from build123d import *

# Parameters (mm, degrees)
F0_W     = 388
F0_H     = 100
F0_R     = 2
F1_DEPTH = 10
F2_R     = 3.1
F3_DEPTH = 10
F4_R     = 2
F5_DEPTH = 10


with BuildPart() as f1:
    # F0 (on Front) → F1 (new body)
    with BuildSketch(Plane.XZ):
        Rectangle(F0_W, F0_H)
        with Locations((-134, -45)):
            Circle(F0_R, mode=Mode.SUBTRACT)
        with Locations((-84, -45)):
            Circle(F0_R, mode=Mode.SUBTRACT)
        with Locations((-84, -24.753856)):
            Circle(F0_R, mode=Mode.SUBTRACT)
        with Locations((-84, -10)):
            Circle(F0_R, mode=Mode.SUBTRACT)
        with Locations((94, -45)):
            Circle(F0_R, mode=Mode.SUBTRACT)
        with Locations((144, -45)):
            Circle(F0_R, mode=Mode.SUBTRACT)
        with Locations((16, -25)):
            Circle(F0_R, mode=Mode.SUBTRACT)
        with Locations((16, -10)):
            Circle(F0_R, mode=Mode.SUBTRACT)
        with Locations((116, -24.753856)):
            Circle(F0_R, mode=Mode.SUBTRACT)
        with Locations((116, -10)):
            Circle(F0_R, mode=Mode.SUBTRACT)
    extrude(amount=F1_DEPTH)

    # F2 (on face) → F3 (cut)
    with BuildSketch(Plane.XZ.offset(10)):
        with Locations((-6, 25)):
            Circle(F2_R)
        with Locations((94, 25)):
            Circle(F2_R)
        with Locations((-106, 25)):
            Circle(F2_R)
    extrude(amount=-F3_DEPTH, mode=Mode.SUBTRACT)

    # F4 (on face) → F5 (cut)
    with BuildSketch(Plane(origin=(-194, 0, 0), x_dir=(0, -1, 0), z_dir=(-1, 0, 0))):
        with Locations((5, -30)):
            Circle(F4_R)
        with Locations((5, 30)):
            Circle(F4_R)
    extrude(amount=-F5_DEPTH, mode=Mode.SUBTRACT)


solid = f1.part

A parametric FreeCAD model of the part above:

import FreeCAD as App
import Part
import Sketcher

V = App.Vector
Q = App.Units.Quantity


def add_polygon(sketch, points):
    """Adds a closed chain of lines whose ends are joined by coincident constraints."""
    first, n = sketch.GeometryCount, len(points)
    for a, b in zip(points, points[1:] + points[:1]):
        sketch.addGeometry(Part.LineSegment(App.Vector(*a, 0), App.Vector(*b, 0)), False)
    for i in range(n):
        sketch.addConstraint(Sketcher.Constraint("Coincident", first + i, 2, first + (i + 1) % n, 1))

doc = App.newDocument("Part")
body = doc.addObject("PartDesign::Body", "Body")

sketch1 = body.newObject("Sketcher::SketchObject", "Sketch")
sketch1.AttachmentSupport = (doc.getObject("XZ_Plane"), [""])
sketch1.MapMode = "FlatFace"
add_polygon(sketch1, [(-194, 50), (-194, -50), (194, -50), (194, 50)])
sketch1.addGeometry(Part.Circle(V(-134, -45, 0), V(0, 0, 1), 2), False)
sketch1.addGeometry(Part.Circle(V(-84, -45, 0), V(0, 0, 1), 2), False)
sketch1.addGeometry(Part.Circle(V(94, -45, 0), V(0, 0, 1), 2), False)
sketch1.addGeometry(Part.Circle(V(144, -45, 0), V(0, 0, 1), 2), False)
sketch1.addGeometry(Part.Circle(V(-84, -24.753856, 0), V(0, 0, 1), 2), False)
sketch1.addGeometry(Part.Circle(V(-84, -10, 0), V(0, 0, 1), 2), False)
sketch1.addGeometry(Part.Circle(V(16, -25, 0), V(0, 0, 1), 2), False)
sketch1.addGeometry(Part.Circle(V(116, -24.753856, 0), V(0, 0, 1), 2), False)
sketch1.addGeometry(Part.Circle(V(16, -10, 0), V(0, 0, 1), 2), False)
sketch1.addGeometry(Part.Circle(V(116, -10, 0), V(0, 0, 1), 2), False)
sketch1.addConstraint(Sketcher.Constraint("Vertical", 0))
sketch1.addConstraint(Sketcher.Constraint("Horizontal", 1))
sketch1.addConstraint(Sketcher.Constraint("Vertical", 2))
sketch1.addConstraint(Sketcher.Constraint("Horizontal", 3))
sketch1.addConstraint(Sketcher.Constraint("Equal", 4, 5))
sketch1.addConstraint(Sketcher.Constraint("Equal", 5, 6))
sketch1.addConstraint(Sketcher.Constraint("Equal", 6, 7))
sketch1.addConstraint(Sketcher.Constraint("Equal", 7, 8))
sketch1.addConstraint(Sketcher.Constraint("Equal", 8, 9))
sketch1.addConstraint(Sketcher.Constraint("Equal", 9, 10))
sketch1.addConstraint(Sketcher.Constraint("Equal", 10, 11))
sketch1.addConstraint(Sketcher.Constraint("Equal", 11, 12))
sketch1.addConstraint(Sketcher.Constraint("Equal", 12, 13))
sketch1.addConstraint(Sketcher.Constraint("Symmetric", 0, 2, 2, 2, -1, 1))
sketch1.addConstraint(Sketcher.Constraint("Horizontal", 4, 3, 5, 3))
sketch1.addConstraint(Sketcher.Constraint("Horizontal", 5, 3, 6, 3))
sketch1.addConstraint(Sketcher.Constraint("Horizontal", 6, 3, 7, 3))
sketch1.addConstraint(Sketcher.Constraint("Horizontal", 8, 3, 11, 3))
sketch1.addConstraint(Sketcher.Constraint("Horizontal", 9, 3, 12, 3))
sketch1.addConstraint(Sketcher.Constraint("Horizontal", 12, 3, 13, 3))
sketch1.addConstraint(Sketcher.Constraint("Vertical", 5, 3, 8, 3))
sketch1.addConstraint(Sketcher.Constraint("Vertical", 8, 3, 9, 3))
sketch1.addConstraint(Sketcher.Constraint("Vertical", 10, 3, 12, 3))
sketch1.addConstraint(Sketcher.Constraint("Vertical", 11, 3, 13, 3))
sketch1.addConstraint(Sketcher.Constraint("Diameter", 4, Q("4 mm")))
sketch1.addConstraint(Sketcher.Constraint("DistanceX", 1, 1, 1, 2, Q("388 mm")))
sketch1.addConstraint(Sketcher.Constraint("DistanceY", 0, 2, 0, 1, Q("100 mm")))
sketch1.addConstraint(Sketcher.Constraint("DistanceX", 4, 3, -1, 1, Q("134 mm")))
sketch1.addConstraint(Sketcher.Constraint("DistanceY", 4, 3, -1, 1, Q("45 mm")))
sketch1.addConstraint(Sketcher.Constraint("DistanceX", 5, 3, -1, 1, Q("84 mm")))
sketch1.addConstraint(Sketcher.Constraint("DistanceX", -1, 1, 6, 3, Q("94 mm")))
sketch1.addConstraint(Sketcher.Constraint("DistanceX", -1, 1, 7, 3, Q("144 mm")))
sketch1.addConstraint(Sketcher.Constraint("DistanceY", 9, 3, -1, 1, Q("10 mm")))
sketch1.addConstraint(Sketcher.Constraint("DistanceX", -1, 1, 10, 3, Q("16 mm")))
sketch1.addConstraint(Sketcher.Constraint("DistanceY", 10, 3, -1, 1, Q("25 mm")))
sketch1.addConstraint(Sketcher.Constraint("DistanceX", -1, 1, 11, 3, Q("116 mm")))
sketch1.addConstraint(Sketcher.Constraint("DistanceY", 8, 3, -1, 1, Q("24.753856 mm")))
pad1 = body.newObject("PartDesign::Pad", "Pad")
pad1.Profile = sketch1
pad1.Length = 10

sketch2 = body.newObject("Sketcher::SketchObject", "Sketch001")
sketch2.AttachmentSupport = (doc.getObject("XZ_Plane"), [""])
sketch2.MapMode = "FlatFace"
sketch2.AttachmentOffset = App.Placement(V(0, 0, 10), App.Rotation())
sketch2.addGeometry(Part.Circle(V(-6, 25, 0), V(0, 0, 1), 3.1), False)
sketch2.addGeometry(Part.Circle(V(94, 25, 0), V(0, 0, 1), 3.1), False)
sketch2.addGeometry(Part.Circle(V(-106, 25, 0), V(0, 0, 1), 3.1), False)
sketch2.addConstraint(Sketcher.Constraint("Equal", 0, 1))
sketch2.addConstraint(Sketcher.Constraint("Equal", 1, 2))
sketch2.addConstraint(Sketcher.Constraint("Horizontal", 0, 3, 1, 3))
sketch2.addConstraint(Sketcher.Constraint("Horizontal", 1, 3, 2, 3))
sketch2.addConstraint(Sketcher.Constraint("Diameter", 0, Q("6.2 mm")))
sketch2.addConstraint(Sketcher.Constraint("DistanceX", 0, 3, -1, 1, Q("6 mm")))
sketch2.addConstraint(Sketcher.Constraint("DistanceY", -1, 1, 0, 3, Q("25 mm")))
sketch2.addConstraint(Sketcher.Constraint("DistanceX", -1, 1, 1, 3, Q("94 mm")))
sketch2.addConstraint(Sketcher.Constraint("DistanceX", 2, 3, -1, 1, Q("106 mm")))
pocket1 = body.newObject("PartDesign::Pocket", "Pocket")
pocket1.Profile = sketch2
pocket1.Length = 10

sketch3 = body.newObject("Sketcher::SketchObject", "Sketch002")
sketch3.AttachmentSupport = (doc.getObject("YZ_Plane"), [""])
sketch3.MapMode = "FlatFace"
sketch3.AttachmentOffset = App.Placement(V(0, 0, -194), App.Rotation())
sketch3.addGeometry(Part.Circle(V(-5, -30, 0), V(0, 0, 1), 2), False)
sketch3.addGeometry(Part.Circle(V(-5, 30, 0), V(0, 0, 1), 2), False)
sketch3.addConstraint(Sketcher.Constraint("Equal", 0, 1))
sketch3.addConstraint(Sketcher.Constraint("Symmetric", 0, 3, 1, 3, -1))
sketch3.addConstraint(Sketcher.Constraint("Diameter", 0, Q("4 mm")))
sketch3.addConstraint(Sketcher.Constraint("DistanceX", 0, 3, -1, 1, Q("5 mm")))
sketch3.addConstraint(Sketcher.Constraint("DistanceY", 0, 3, -1, 1, Q("30 mm")))
pocket2 = body.newObject("PartDesign::Pocket", "Pocket001")
pocket2.Profile = sketch3
pocket2.Length = 10
pocket2.Reversed = True

doc.recompute()
